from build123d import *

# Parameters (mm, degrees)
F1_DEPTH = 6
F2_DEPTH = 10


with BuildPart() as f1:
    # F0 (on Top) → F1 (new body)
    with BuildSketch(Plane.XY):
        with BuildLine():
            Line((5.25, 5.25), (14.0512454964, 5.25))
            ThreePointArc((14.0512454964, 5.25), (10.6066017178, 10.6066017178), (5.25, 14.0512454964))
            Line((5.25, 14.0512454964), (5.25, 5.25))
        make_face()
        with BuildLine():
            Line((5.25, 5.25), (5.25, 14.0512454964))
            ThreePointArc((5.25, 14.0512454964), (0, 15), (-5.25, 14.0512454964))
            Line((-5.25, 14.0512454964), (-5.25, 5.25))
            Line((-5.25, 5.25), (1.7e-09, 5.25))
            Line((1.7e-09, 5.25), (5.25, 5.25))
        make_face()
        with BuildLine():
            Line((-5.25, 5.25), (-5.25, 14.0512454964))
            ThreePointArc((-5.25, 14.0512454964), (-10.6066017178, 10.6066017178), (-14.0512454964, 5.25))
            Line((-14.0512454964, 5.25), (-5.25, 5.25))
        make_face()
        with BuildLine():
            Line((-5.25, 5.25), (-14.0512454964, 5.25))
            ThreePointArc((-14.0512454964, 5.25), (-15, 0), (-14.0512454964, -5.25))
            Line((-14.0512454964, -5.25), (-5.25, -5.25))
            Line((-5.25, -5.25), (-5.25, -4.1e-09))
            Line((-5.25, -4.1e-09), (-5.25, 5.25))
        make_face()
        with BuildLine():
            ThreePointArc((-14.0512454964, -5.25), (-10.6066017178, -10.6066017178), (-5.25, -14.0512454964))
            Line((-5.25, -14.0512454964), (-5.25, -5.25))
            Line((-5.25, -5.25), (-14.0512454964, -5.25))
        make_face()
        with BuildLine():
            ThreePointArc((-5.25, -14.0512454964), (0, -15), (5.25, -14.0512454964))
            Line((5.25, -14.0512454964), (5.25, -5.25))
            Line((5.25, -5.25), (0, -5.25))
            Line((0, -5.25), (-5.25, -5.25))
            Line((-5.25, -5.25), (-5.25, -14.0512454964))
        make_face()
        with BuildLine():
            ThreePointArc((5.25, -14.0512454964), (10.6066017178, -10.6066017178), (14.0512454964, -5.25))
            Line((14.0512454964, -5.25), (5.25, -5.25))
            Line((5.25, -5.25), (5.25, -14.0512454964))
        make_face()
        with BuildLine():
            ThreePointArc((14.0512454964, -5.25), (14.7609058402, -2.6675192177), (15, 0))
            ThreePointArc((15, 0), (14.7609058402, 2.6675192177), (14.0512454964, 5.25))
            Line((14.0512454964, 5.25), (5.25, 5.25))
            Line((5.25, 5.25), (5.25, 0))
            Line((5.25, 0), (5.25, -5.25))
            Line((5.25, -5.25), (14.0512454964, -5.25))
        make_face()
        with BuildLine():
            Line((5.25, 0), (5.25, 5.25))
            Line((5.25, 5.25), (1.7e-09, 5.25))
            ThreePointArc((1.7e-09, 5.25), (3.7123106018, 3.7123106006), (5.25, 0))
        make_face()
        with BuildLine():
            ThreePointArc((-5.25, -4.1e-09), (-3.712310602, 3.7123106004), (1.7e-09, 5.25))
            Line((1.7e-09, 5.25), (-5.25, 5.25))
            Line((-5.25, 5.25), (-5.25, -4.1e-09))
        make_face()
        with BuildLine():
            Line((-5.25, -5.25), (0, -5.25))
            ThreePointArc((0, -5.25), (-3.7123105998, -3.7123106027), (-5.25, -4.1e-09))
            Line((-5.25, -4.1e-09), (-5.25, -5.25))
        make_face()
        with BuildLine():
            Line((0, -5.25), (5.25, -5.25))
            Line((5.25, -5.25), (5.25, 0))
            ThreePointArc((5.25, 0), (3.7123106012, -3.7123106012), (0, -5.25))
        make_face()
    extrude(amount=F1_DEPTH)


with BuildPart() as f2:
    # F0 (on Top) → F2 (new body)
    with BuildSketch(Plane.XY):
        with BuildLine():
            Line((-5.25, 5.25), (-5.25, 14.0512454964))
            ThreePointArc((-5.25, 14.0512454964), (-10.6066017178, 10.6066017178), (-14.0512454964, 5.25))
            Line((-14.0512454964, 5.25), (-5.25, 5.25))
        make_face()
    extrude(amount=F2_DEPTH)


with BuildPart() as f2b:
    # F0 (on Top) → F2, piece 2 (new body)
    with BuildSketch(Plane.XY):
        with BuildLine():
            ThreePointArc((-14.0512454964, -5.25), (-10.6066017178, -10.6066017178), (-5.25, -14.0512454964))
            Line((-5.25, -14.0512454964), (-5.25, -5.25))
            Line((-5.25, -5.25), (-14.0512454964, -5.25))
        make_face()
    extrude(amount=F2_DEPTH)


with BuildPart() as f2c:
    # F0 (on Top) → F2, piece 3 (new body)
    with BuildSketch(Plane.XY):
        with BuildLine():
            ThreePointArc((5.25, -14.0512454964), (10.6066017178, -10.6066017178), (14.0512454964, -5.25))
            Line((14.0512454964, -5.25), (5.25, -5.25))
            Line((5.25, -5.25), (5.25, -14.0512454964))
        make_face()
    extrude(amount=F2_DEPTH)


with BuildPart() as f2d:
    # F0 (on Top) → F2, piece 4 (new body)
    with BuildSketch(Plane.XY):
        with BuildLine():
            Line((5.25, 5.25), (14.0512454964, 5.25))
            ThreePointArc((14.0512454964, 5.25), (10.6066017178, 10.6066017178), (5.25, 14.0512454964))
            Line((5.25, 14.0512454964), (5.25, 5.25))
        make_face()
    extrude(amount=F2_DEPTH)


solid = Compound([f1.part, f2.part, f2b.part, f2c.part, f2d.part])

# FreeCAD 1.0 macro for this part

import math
import FreeCAD as App
import Part
import Sketcher

V = App.Vector
Q = App.Units.Quantity

doc = App.newDocument("Part")
body = doc.addObject("PartDesign::Body", "Body")

# Sketch on XY plane
sketch1 = body.newObject("Sketcher::SketchObject", "Sketch")
sketch1.AttachmentSupport = (doc.getObject("XY_Plane"), [""])
sketch1.MapMode = "FlatFace"
sketch1.addGeometry([
    Part.ArcOfCircle(Part.Circle(V(0, 0, 0), V(0, 0, 1), 15), math.radians(-160), math.radians(-110)),  # 0
    Part.ArcOfCircle(Part.Circle(V(0, 0, 0), V(0, 0, 1), 15), math.radians(-110), math.radians(-70)),  # 1
    Part.ArcOfCircle(Part.Circle(V(0, 0, 0), V(0, 0, 1), 15), math.radians(-70), math.radians(70)),  # 2
    Part.ArcOfCircle(Part.Circle(V(0, 0, 0), V(0, 0, 1), 15), math.radians(70), math.radians(110)),  # 3
    Part.ArcOfCircle(Part.Circle(V(0, 0, 0), V(0, 0, 1), 15), math.radians(110), math.radians(160)),  # 4
    Part.ArcOfCircle(Part.Circle(V(0, 0, 0), V(0, 0, 1), 15), math.radians(160), math.radians(200)),  # 5
    Part.ArcOfCircle(Part.Circle(V(0, 0, 0), V(0, 0, 1), 5), math.radians(90), math.radians(180)),  # 6
    Part.ArcOfCircle(Part.Circle(V(0, 0, 0), V(0, 0, 1), 5), math.radians(0), math.radians(90)),  # 7
    Part.ArcOfCircle(Part.Circle(V(0, 0, 0), V(0, 0, 1), 5), math.radians(-90), math.radians(0)),  # 8
    Part.ArcOfCircle(Part.Circle(V(0, 0, 0), V(0, 0, 1), 5), math.radians(-180), math.radians(-90)),  # 9
], False)
sketch1.addConstraint([
    Sketcher.Constraint("Tangent", 0, 2, 1, 1),
    Sketcher.Constraint("Tangent", 1, 2, 2, 1),
    Sketcher.Constraint("Tangent", 2, 2, 3, 1),
    Sketcher.Constraint("Tangent", 3, 2, 4, 1),
    Sketcher.Constraint("Tangent", 4, 2, 5, 1),
    Sketcher.Constraint("Tangent", 5, 2, 0, 1),
    Sketcher.Constraint("Tangent", 6, 1, 7, 2),
    Sketcher.Constraint("Tangent", 7, 1, 8, 2),
    Sketcher.Constraint("Tangent", 8, 1, 9, 2),
    Sketcher.Constraint("Tangent", 9, 1, 6, 2),
    Sketcher.Constraint("Coincident", 0, 3, -1, 1),
    Sketcher.Constraint("Coincident", 2, 3, -1, 1),
    Sketcher.Constraint("Coincident", 6, 3, -1, 1),
    Sketcher.Constraint("Equal", 2, 3),
    Sketcher.Constraint("Equal", 6, 7),
    Sketcher.Constraint("PointOnObject", 6, 1, -2),
    Sketcher.Constraint("PointOnObject", 7, 1, -1),
    Sketcher.Constraint("PointOnObject", 8, 1, -2),
    Sketcher.Constraint("PointOnObject", 9, 1, -1),
    Sketcher.Constraint("Horizontal", 0, 2, 1, 2),
    Sketcher.Constraint("Horizontal", 2, 2, 3, 2),
    Sketcher.Constraint("Horizontal", 4, 2, 6, 1),
    Sketcher.Constraint("Horizontal", 5, 2, 8, 1),
    Sketcher.Constraint("Vertical", 1, 2, 2, 2),
    Sketcher.Constraint("Vertical", 2, 2, 7, 1),
    Sketcher.Constraint("Radius", 0, Q("15 mm")),
    Sketcher.Constraint("Radius", 6, Q("5.25 mm")),
])
pad1 = body.newObject("PartDesign::Pad", "Pad")
pad1.Profile = sketch1
pad1.Length = 6
body2 = doc.addObject("PartDesign::Body", "Body001")

# Sketch on XY plane
sketch2 = body2.newObject("Sketcher::SketchObject", "Sketch001")
sketch2.AttachmentSupport = (doc.getObject("XY_Plane001"), [""])
sketch2.MapMode = "FlatFace"
sketch2.addGeometry([
    Part.LineSegment(V(-5, 5, 0), V(-5, 14, 0)),
    Part.ArcOfCircle(Part.Circle(V(0, 0, 0), V(0, 0, 1), 15), math.radians(110), math.radians(160)),
    Part.LineSegment(V(-14, 5, 0), V(-5, 5, 0)),
], False)
sketch2.addConstraint([
    Sketcher.Constraint("Coincident", 0, 2, 1, 1),
    Sketcher.Constraint("Coincident", 1, 2, 2, 1),
    Sketcher.Constraint("Coincident", 2, 2, 0, 1),
    Sketcher.Constraint("Vertical", 0),
    Sketcher.Constraint("Horizontal", 2),
    Sketcher.Constraint("Coincident", 1, 3, -1, 1),
    Sketcher.Constraint("Equal", 2, 0),
    Sketcher.Constraint("Radius", 1, Q("15 mm")),
    Sketcher.Constraint("DistanceX", 0, 2, -1, 1, Q("5.25 mm")),
])
pad2 = body2.newObject("PartDesign::Pad", "Pad001")
pad2.Profile = sketch2
pad2.Length = 10
body3 = doc.addObject("PartDesign::Body", "Body002")

# Sketch on XY plane
sketch3 = body3.newObject("Sketcher::SketchObject", "Sketch002")
sketch3.AttachmentSupport = (doc.getObject("XY_Plane002"), [""])
sketch3.MapMode = "FlatFace"
sketch3.addGeometry([
    Part.ArcOfCircle(Part.Circle(V(0, 0, 0), V(0, 0, 1), 15), math.radians(-160), math.radians(-110)),
    Part.LineSegment(V(-5, -14, 0), V(-5, -5, 0)),
    Part.LineSegment(V(-5, -5, 0), V(-14, -5, 0)),
], False)
sketch3.addConstraint([
    Sketcher.Constraint("Coincident", 0, 2, 1, 1),
    Sketcher.Constraint("Coincident", 1, 2, 2, 1),
    Sketcher.Constraint("Coincident", 2, 2, 0, 1),
    Sketcher.Constraint("Vertical", 1),
    Sketcher.Constraint("Horizontal", 2),
    Sketcher.Constraint("Coincident", 0, 3, -1, 1),
    Sketcher.Constraint("Equal", 2, 1),
    Sketcher.Constraint("Radius", 0, Q("15 mm")),
    Sketcher.Constraint("DistanceX", 0, 2, -1, 1, Q("5.25 mm")),
])
pad3 = body3.newObject("PartDesign::Pad", "Pad002")
pad3.Profile = sketch3
pad3.Length = 10
body4 = doc.addObject("PartDesign::Body", "Body003")

# Sketch on XY plane
sketch4 = body4.newObject("Sketcher::SketchObject", "Sketch003")
sketch4.AttachmentSupport = (doc.getObject("XY_Plane003"), [""])
sketch4.MapMode = "FlatFace"
sketch4.addGeometry([
    Part.ArcOfCircle(Part.Circle(V(0, 0, 0), V(0, 0, 1), 15), math.radians(-70), math.radians(-20)),
    Part.LineSegment(V(14, -5, 0), V(5, -5, 0)),
    Part.LineSegment(V(5, -5, 0), V(5, -14, 0)),
], False)
sketch4.addConstraint([
    Sketcher.Constraint("Coincident", 0, 2, 1, 1),
    Sketcher.Constraint("Coincident", 1, 2, 2, 1),
    Sketcher.Constraint("Coincident", 2, 2, 0, 1),
    Sketcher.Constraint("Horizontal", 1),
    Sketcher.Constraint("Vertical", 2),
    Sketcher.Constraint("Coincident", 0, 3, -1, 1),
    Sketcher.Constraint("Equal", 1, 2),
    Sketcher.Constraint("Radius", 0, Q("15 mm")),
    Sketcher.Constraint("DistanceY", 0, 2, -1, 1, Q("5.25 mm")),
])
pad4 = body4.newObject("PartDesign::Pad", "Pad003")
pad4.Profile = sketch4
pad4.Length = 10
body5 = doc.addObject("PartDesign::Body", "Body004")

# Sketch on XY plane
sketch5 = body5.newObject("Sketcher::SketchObject", "Sketch004")
sketch5.AttachmentSupport = (doc.getObject("XY_Plane004"), [""])
sketch5.MapMode = "FlatFace"
sketch5.addGeometry([
    Part.LineSegment(V(5, 5, 0), V(14, 5, 0)),
    Part.ArcOfCircle(Part.Circle(V(0, 0, 0), V(0, 0, 1), 15), math.radians(20), math.radians(70)),
    Part.LineSegment(V(5, 14, 0), V(5, 5, 0)),
], False)
sketch5.addConstraint([
    Sketcher.Constraint("Coincident", 0, 2, 1, 1),
    Sketcher.Constraint("Coincident", 1, 2, 2, 1),
    Sketcher.Constraint("Coincident", 2, 2, 0, 1),
    Sketcher.Constraint("Horizontal", 0),
    Sketcher.Constraint("Vertical", 2),
    Sketcher.Constraint("Coincident", 1, 3, -1, 1),
    Sketcher.Constraint("Equal", 0, 2),
    Sketcher.Constraint("Radius", 1, Q("15 mm")),
    Sketcher.Constraint("DistanceY", -1, 1, 0, 2, Q("5.25 mm")),
])
pad5 = body5.newObject("PartDesign::Pad", "Pad004")
pad5.Profile = sketch5
pad5.Length = 10

doc.recompute()
